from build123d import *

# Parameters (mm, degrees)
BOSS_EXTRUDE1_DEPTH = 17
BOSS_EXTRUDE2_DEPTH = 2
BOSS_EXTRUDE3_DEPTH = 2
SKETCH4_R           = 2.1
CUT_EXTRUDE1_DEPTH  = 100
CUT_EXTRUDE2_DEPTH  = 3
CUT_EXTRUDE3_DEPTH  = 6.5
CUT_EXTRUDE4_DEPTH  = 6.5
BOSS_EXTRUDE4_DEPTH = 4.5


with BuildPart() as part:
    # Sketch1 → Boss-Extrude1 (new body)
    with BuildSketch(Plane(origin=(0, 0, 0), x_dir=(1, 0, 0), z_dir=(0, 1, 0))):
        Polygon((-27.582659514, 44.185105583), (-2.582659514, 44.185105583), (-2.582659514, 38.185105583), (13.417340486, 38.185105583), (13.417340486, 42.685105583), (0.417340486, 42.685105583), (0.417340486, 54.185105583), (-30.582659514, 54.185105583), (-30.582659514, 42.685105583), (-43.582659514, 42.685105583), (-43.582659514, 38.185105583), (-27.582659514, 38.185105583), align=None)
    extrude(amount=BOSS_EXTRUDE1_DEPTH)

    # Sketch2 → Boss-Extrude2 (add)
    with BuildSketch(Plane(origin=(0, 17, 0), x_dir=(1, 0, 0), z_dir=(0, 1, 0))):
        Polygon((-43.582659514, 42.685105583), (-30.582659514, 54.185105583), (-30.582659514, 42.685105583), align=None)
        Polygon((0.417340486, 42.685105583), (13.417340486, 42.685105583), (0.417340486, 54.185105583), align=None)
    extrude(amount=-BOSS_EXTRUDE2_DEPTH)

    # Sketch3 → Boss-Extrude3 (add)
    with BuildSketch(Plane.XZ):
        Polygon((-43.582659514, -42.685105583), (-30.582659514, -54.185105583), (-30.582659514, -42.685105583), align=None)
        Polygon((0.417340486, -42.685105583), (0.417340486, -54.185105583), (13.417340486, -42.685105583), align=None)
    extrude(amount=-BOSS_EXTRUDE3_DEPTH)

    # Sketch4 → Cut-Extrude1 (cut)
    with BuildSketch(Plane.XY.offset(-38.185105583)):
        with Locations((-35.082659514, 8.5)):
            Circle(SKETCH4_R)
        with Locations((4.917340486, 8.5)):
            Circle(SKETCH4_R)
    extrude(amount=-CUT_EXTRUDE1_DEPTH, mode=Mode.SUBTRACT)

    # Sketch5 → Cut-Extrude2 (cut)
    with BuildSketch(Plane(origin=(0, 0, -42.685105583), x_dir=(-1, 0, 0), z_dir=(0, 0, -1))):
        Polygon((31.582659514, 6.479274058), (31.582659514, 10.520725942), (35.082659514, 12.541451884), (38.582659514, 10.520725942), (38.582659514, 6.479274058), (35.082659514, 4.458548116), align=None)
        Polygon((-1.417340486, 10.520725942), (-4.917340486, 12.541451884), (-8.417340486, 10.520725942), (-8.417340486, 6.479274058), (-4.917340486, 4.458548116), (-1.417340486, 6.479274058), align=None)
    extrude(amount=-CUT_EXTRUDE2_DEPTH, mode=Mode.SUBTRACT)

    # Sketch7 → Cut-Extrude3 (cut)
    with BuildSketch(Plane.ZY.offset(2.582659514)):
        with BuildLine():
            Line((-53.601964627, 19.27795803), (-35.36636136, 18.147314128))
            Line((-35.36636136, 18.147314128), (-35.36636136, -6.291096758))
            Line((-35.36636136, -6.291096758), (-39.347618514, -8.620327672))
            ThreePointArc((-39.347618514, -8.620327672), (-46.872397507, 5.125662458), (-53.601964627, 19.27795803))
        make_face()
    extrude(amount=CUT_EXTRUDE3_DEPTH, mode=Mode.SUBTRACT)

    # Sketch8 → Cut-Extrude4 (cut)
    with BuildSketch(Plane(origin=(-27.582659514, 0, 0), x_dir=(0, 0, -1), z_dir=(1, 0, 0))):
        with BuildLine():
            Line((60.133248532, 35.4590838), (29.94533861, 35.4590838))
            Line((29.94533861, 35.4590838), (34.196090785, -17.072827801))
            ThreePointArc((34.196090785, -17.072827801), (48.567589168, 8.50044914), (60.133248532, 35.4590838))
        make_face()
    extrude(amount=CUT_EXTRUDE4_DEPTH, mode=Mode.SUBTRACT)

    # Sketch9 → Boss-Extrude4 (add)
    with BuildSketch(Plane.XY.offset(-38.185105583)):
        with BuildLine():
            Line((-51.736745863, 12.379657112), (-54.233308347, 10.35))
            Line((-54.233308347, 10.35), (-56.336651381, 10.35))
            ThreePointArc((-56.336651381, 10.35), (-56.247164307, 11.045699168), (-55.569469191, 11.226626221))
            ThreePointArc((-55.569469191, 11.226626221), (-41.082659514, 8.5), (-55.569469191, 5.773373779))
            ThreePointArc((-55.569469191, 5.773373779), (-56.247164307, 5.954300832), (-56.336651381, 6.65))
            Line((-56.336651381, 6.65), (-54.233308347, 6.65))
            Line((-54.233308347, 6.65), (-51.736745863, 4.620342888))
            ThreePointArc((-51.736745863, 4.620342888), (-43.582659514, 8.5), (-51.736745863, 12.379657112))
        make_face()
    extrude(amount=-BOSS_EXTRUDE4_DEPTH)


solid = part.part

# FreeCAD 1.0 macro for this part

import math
import FreeCAD as App
import Part
import Sketcher

V = App.Vector
Q = App.Units.Quantity


def add_polygon(sketch, points):
    """Adds a closed chain of lines whose ends are joined by coincident constraints."""
    first, n = sketch.GeometryCount, len(points)
    for a, b in zip(points, points[1:] + points[:1]):
        sketch.addGeometry(Part.LineSegment(App.Vector(*a, 0), App.Vector(*b, 0)), False)
    for i in range(n):
        sketch.addConstraint(Sketcher.Constraint("Coincident", first + i, 2, first + (i + 1) % n, 1))

doc = App.newDocument("Part")
body = doc.addObject("PartDesign::Body", "Body")

# Sketch on XZ plane
sketch1 = body.newObject("Sketcher::SketchObject", "Sketch")
sketch1.AttachmentSupport = (doc.getObject("XZ_Plane"), [""])
sketch1.MapMode = "FlatFace"
add_polygon(sketch1, [(-27.6, -44.2), (-2.6, -44.2), (-2.6, -38.2), (13.4, -38.2), (13.4, -42.7), (0.4, -42.7), (0.4, -54.2), (-30.6, -54.2), (-30.6, -42.7), (-43.6, -42.7), (-43.6, -38.2), (-27.6, -38.2)])  # lines 0-11
sketch1.addConstraint(Sketcher.Constraint("Horizontal", 0))
sketch1.addConstraint(Sketcher.Constraint("Vertical", 1))
sketch1.addConstraint(Sketcher.Constraint("Horizontal", 2))
sketch1.addConstraint(Sketcher.Constraint("Vertical", 3))
sketch1.addConstraint(Sketcher.Constraint("Horizontal", 4))
sketch1.addConstraint(Sketcher.Constraint("Vertical", 5))
sketch1.addConstraint(Sketcher.Constraint("Horizontal", 6))
sketch1.addConstraint(Sketcher.Constraint("Vertical", 7))
sketch1.addConstraint(Sketcher.Constraint("Horizontal", 8))
sketch1.addConstraint(Sketcher.Constraint("Vertical", 9))
sketch1.addConstraint(Sketcher.Constraint("Horizontal", 10))
sketch1.addConstraint(Sketcher.Constraint("Vertical", 11))
sketch1.addConstraint(Sketcher.Constraint("Horizontal", 4, 2, 7, 2))
sketch1.addConstraint(Sketcher.Constraint("Horizontal", 2, 2, 9, 2))
sketch1.addConstraint(Sketcher.Constraint("Equal", 4, 8))
sketch1.addConstraint(Sketcher.Constraint("Equal", 2, 10))
sketch1.addConstraint(Sketcher.Constraint("DistanceX", 0, 1, 0, 2, Q("25 mm")))
sketch1.addConstraint(Sketcher.Constraint("DistanceX", 2, 1, 2, 2, Q("16 mm")))
sketch1.addConstraint(Sketcher.Constraint("DistanceX", 4, 2, 4, 1, Q("13 mm")))
sketch1.addConstraint(Sketcher.Constraint("DistanceY", 1, 1, 1, 2, Q("6 mm")))
sketch1.addConstraint(Sketcher.Constraint("DistanceY", 3, 2, 3, 1, Q("4.5 mm")))
sketch1.addConstraint(Sketcher.Constraint("DistanceY", 5, 2, 5, 1, Q("11.5 mm")))
sketch1.addConstraint(Sketcher.Constraint("DistanceX", 0, 2, -1, 1, Q("2.58266 mm")))
sketch1.addConstraint(Sketcher.Constraint("DistanceY", 0, 2, -1, 1, Q("44.185106 mm")))
pad1 = body.newObject("PartDesign::Pad", "Pad")
pad1.Profile = sketch1
pad1.Length = 17
pad1.Reversed = True

# Sketch on XZ plane
sketch2 = body.newObject("Sketcher::SketchObject", "Sketch001")
sketch2.AttachmentSupport = (doc.getObject("XZ_Plane"), [""])
sketch2.MapMode = "FlatFace"
sketch2.AttachmentOffset = App.Placement(V(0, 0, -17), App.Rotation())
add_polygon(sketch2, [(-31, -54), (-44, -43), (-31, -43)])  # lines 0-2
add_polygon(sketch2, [(0, -43), (13, -43), (0, -54)])  # lines 3-5
sketch2.addConstraint(Sketcher.Constraint("Horizontal", 1))
sketch2.addConstraint(Sketcher.Constraint("Vertical", 2))
sketch2.addConstraint(Sketcher.Constraint("Horizontal", 3))
sketch2.addConstraint(Sketcher.Constraint("Vertical", 5))
sketch2.addConstraint(Sketcher.Constraint("Horizontal", 1, 2, 3, 2))
sketch2.addConstraint(Sketcher.Constraint("Horizontal", 2, 2, 4, 2))
sketch2.addConstraint(Sketcher.Constraint("Equal", 1, 3))
sketch2.addConstraint(Sketcher.Constraint("DistanceX", 1, 1, 1, 2, Q("13 mm")))
sketch2.addConstraint(Sketcher.Constraint("DistanceY", 2, 2, 2, 1, Q("11.5 mm")))
sketch2.addConstraint(Sketcher.Constraint("DistanceX", 1, 2, 3, 2, Q("44 mm")))
sketch2.addConstraint(Sketcher.Constraint("DistanceX", 0, 2, -1, 1, Q("43.58266 mm")))
sketch2.addConstraint(Sketcher.Constraint("DistanceY", 0, 2, -1, 1, Q("42.685106 mm")))
pad2 = body.newObject("PartDesign::Pad", "Pad001")
pad2.Profile = sketch2
pad2.Length = 2

# Sketch on XZ plane
sketch3 = body.newObject("Sketcher::SketchObject", "Sketch002")
sketch3.AttachmentSupport = (doc.getObject("XZ_Plane"), [""])
sketch3.MapMode = "FlatFace"
add_polygon(sketch3, [(-44, -43), (-31, -54), (-31, -43)])  # lines 0-2
add_polygon(sketch3, [(0, -43), (0, -54), (13, -43)])  # lines 3-5
sketch3.addConstraint(Sketcher.Constraint("Vertical", 1))
sketch3.addConstraint(Sketcher.Constraint("Horizontal", 2))
sketch3.addConstraint(Sketcher.Constraint("Vertical", 3))
sketch3.addConstraint(Sketcher.Constraint("Horizontal", 5))
sketch3.addConstraint(Sketcher.Constraint("Horizontal", 0, 2, 3, 2))
sketch3.addConstraint(Sketcher.Constraint("Horizontal", 2, 2, 4, 2))
sketch3.addConstraint(Sketcher.Constraint("Equal", 2, 5))
sketch3.addConstraint(Sketcher.Constraint("DistanceX", 2, 2, 2, 1, Q("13 mm")))
sketch3.addConstraint(Sketcher.Constraint("DistanceY", 1, 1, 1, 2, Q("11.5 mm")))
sketch3.addConstraint(Sketcher.Constraint("DistanceX", 0, 2, 3, 2, Q("31 mm")))
sketch3.addConstraint(Sketcher.Constraint("DistanceX", 0, 2, -1, 1, Q("30.58266 mm")))
sketch3.addConstraint(Sketcher.Constraint("DistanceY", 0, 2, -1, 1, Q("54.185106 mm")))
pad3 = body.newObject("PartDesign::Pad", "Pad002")
pad3.Profile = sketch3
pad3.Length = 2
pad3.Reversed = True

# Sketch on XY plane
sketch4 = body.newObject("Sketcher::SketchObject", "Sketch003")
sketch4.AttachmentSupport = (doc.getObject("XY_Plane"), [""])
sketch4.MapMode = "FlatFace"
sketch4.AttachmentOffset = App.Placement(V(0, 0, -38.185106), App.Rotation())
sketch4.addGeometry(Part.Circle(V(-35.1, 8.5, 0), V(0, 0, 1), 2.1), False)
sketch4.addGeometry(Part.Circle(V(4.9, 8.5, 0), V(0, 0, 1), 2.1), False)
sketch4.addConstraint(Sketcher.Constraint("Equal", 0, 1))
sketch4.addConstraint(Sketcher.Constraint("Horizontal", 0, 3, 1, 3))
sketch4.addConstraint(Sketcher.Constraint("Diameter", 0, Q("4.2 mm")))
sketch4.addConstraint(Sketcher.Constraint("DistanceX", 0, 3, 1, 3, Q("40 mm")))
sketch4.addConstraint(Sketcher.Constraint("DistanceY", -1, 1, 0, 3, Q("8.5 mm")))
sketch4.addConstraint(Sketcher.Constraint("DistanceX", 0, 3, -1, 1, Q("35.08266 mm")))
pocket1 = body.newObject("PartDesign::Pocket", "Pocket")
pocket1.Profile = sketch4
pocket1.Length = 100

# Sketch on XY plane
sketch5 = body.newObject("Sketcher::SketchObject", "Sketch004")
sketch5.AttachmentSupport = (doc.getObject("XY_Plane"), [""])
sketch5.MapMode = "FlatFace"
sketch5.AttachmentOffset = App.Placement(V(0, 0, -42.685106), App.Rotation())
add_polygon(sketch5, [(-31.6, 10.5), (-31.6, 6.5), (-35.1, 4.5), (-38.6, 6.5), (-38.6, 10.5), (-35.1, 12.5)])  # lines 0-5
add_polygon(sketch5, [(1.4, 10.5), (4.9, 12.5), (8.4, 10.5), (8.4, 6.5), (4.9, 4.5), (1.4, 6.5)])  # lines 6-11
sketch5.addConstraint(Sketcher.Constraint("Vertical", 0))
sketch5.addConstraint(Sketcher.Constraint("Vertical", 3))
sketch5.addConstraint(Sketcher.Constraint("Vertical", 8))
sketch5.addConstraint(Sketcher.Constraint("Vertical", 11))
sketch5.addConstraint(Sketcher.Constraint("Parallel", 1, 4))
sketch5.addConstraint(Sketcher.Constraint("Parallel", 2, 5))
sketch5.addConstraint(Sketcher.Constraint("Parallel", 4, 6))
sketch5.addConstraint(Sketcher.Constraint("Parallel", 5, 7))
sketch5.addConstraint(Sketcher.Constraint("Parallel", 6, 9))
sketch5.addConstraint(Sketcher.Constraint("Parallel", 7, 10))
sketch5.addConstraint(Sketcher.Constraint("Horizontal", 0, 2, 2, 2))
sketch5.addConstraint(Sketcher.Constraint("Horizontal", 3, 2, 5, 2))
sketch5.addConstraint(Sketcher.Constraint("Horizontal", 4, 2, 6, 2))
sketch5.addConstraint(Sketcher.Constraint("Horizontal", 5, 2, 7, 2))
sketch5.addConstraint(Sketcher.Constraint("Horizontal", 2, 2, 8, 2))
sketch5.addConstraint(Sketcher.Constraint("Horizontal", 1, 2, 9, 2))
sketch5.addConstraint(Sketcher.Constraint("Horizontal", 8, 2, 10, 2))
sketch5.addConstraint(Sketcher.Constraint("Vertical", 1, 2, 4, 2))
sketch5.addConstraint(Sketcher.Constraint("Angle", 1, Q("-150 deg")))
sketch5.addConstraint(Sketcher.Constraint("DistanceX", 2, 2, 0, 2, Q("7 mm")))
sketch5.addConstraint(Sketcher.Constraint("DistanceX", 4, 2, 6, 2, Q("40 mm")))
sketch5.addConstraint(Sketcher.Constraint("DistanceY", 0, 2, 0, 1, Q("4.041452 mm")))
sketch5.addConstraint(Sketcher.Constraint("DistanceX", 0, 2, -1, 1, Q("31.58266 mm")))
sketch5.addConstraint(Sketcher.Constraint("DistanceY", -1, 1, 1, 2, Q("4.458548 mm")))
pocket2 = body.newObject("PartDesign::Pocket", "Pocket001")
pocket2.Profile = sketch5
pocket2.Length = 3
pocket2.Reversed = True

# Sketch on YZ plane
sketch6 = body.newObject("Sketcher::SketchObject", "Sketch005")
sketch6.AttachmentSupport = (doc.getObject("YZ_Plane"), [""])
sketch6.MapMode = "FlatFace"
sketch6.AttachmentOffset = App.Placement(V(0, 0, -2.58266), App.Rotation())
sketch6.addGeometry(Part.LineSegment(V(18.1, -35.4, 0), V(19.3, -53.6, 0)), False)
sketch6.addGeometry(Part.ArcOfCircle(Part.Circle(V(130.2, 198, 0), V(0, 0, 1), 275), math.radians(-120.33), math.radians(-113.8)), False)
sketch6.addGeometry(Part.LineSegment(V(-8.6, -39.3, 0), V(-6.3, -35.4, 0)), False)
sketch6.addGeometry(Part.LineSegment(V(-6.3, -35.4, 0), V(18.1, -35.4, 0)), False)
sketch6.addConstraint(Sketcher.Constraint("Coincident", 0, 2, 1, 2))
sketch6.addConstraint(Sketcher.Constraint("Coincident", 1, 1, 2, 1))
sketch6.addConstraint(Sketcher.Constraint("Coincident", 2, 2, 3, 1))
sketch6.addConstraint(Sketcher.Constraint("Coincident", 3, 2, 0, 1))
sketch6.addConstraint(Sketcher.Constraint("Horizontal", 3))
sketch6.addConstraint(Sketcher.Constraint("Radius", 1, Q("275 mm")))
sketch6.addConstraint(Sketcher.Constraint("DistanceX", 3, 1, 3, 2, Q("24.438411 mm")))
sketch6.addConstraint(Sketcher.Constraint("Distance", 0, Q("18.270621 mm")))
sketch6.addConstraint(Sketcher.Constraint("Distance", 2, Q("4.612562 mm")))
sketch6.addConstraint(Sketcher.Constraint("DistanceX", -1, 1, 1, 3, Q("130.247951 mm")))
sketch6.addConstraint(Sketcher.Constraint("DistanceX", -1, 1, 0, 2, Q("19.277958 mm")))
sketch6.addConstraint(Sketcher.Constraint("DistanceY", 1, 1, -1, 1, Q("39.347619 mm")))
sketch6.addConstraint(Sketcher.Constraint("DistanceY", 2, 2, -1, 1, Q("35.366361 mm")))
pocket3 = body.newObject("PartDesign::Pocket", "Pocket002")
pocket3.Profile = sketch6
pocket3.Length = 6.5

# Sketch on YZ plane
sketch7 = body.newObject("Sketcher::SketchObject", "Sketch006")
sketch7.AttachmentSupport = (doc.getObject("YZ_Plane"), [""])
sketch7.MapMode = "FlatFace"
sketch7.AttachmentOffset = App.Placement(V(0, 0, -27.58266), App.Rotation())
sketch7.addGeometry(Part.LineSegment(V(35, -60, 0), V(35, -30, 0)), False)
sketch7.addGeometry(Part.LineSegment(V(35, -30, 0), V(-17, -34, 0)), False)
sketch7.addGeometry(Part.ArcOfCircle(Part.Circle(V(130, 198, 0), V(0, 0, 1), 275), math.radians(-122.39), math.radians(-110.16)), False)
sketch7.addConstraint(Sketcher.Constraint("Coincident", 0, 2, 1, 1))
sketch7.addConstraint(Sketcher.Constraint("Coincident", 1, 2, 2, 1))
sketch7.addConstraint(Sketcher.Constraint("Coincident", 2, 2, 0, 1))
sketch7.addConstraint(Sketcher.Constraint("Vertical", 0))
sketch7.addConstraint(Sketcher.Constraint("Radius", 2, Q("275 mm")))
sketch7.addConstraint(Sketcher.Constraint("DistanceY", 0, 1, 0, 2, Q("30.18791 mm")))
sketch7.addConstraint(Sketcher.Constraint("Distance", 1, Q("52.703611 mm")))
sketch7.addConstraint(Sketcher.Constraint("DistanceX", -1, 1, 2, 3, Q("130.247951 mm")))
sketch7.addConstraint(Sketcher.Constraint("DistanceY", 0, 2, -1, 1, Q("29.945339 mm")))
sketch7.addConstraint(Sketcher.Constraint("DistanceY", 1, 2, -1, 1, Q("34.196091 mm")))
pocket4 = body.newObject("PartDesign::Pocket", "Pocket003")
pocket4.Profile = sketch7
pocket4.Length = 6.5
pocket4.Reversed = True

# Sketch on XY plane
sketch8 = body.newObject("Sketcher::SketchObject", "Sketch007")
sketch8.AttachmentSupport = (doc.getObject("XY_Plane"), [""])
sketch8.MapMode = "FlatFace"
sketch8.AttachmentOffset = App.Placement(V(0, 0, -38.185106), App.Rotation())
sketch8.addGeometry(Part.LineSegment(V(-54.2, 10.3, 0), V(-51.7, 12.4, 0)), False)
sketch8.addGeometry(Part.ArcOfCircle(Part.Circle(V(-48.6, 8.5, 0), V(0, 0, 1), 5), math.radians(-129), math.radians(129)), False)
sketch8.addGeometry(Part.LineSegment(V(-51.7, 4.6, 0), V(-54.2, 6.7, 0)), False)
sketch8.addGeometry(Part.LineSegment(V(-54.2, 6.7, 0), V(-56.3, 6.7, 0)), False)
sketch8.addGeometry(Part.ArcOfCircle(Part.Circle(V(-55.8, 6.4, 0), V(0, 0, 1), 0.6), math.radians(153), math.radians(289)), False)
sketch8.addGeometry(Part.ArcOfCircle(Part.Circle(V(-48.6, 8.5, 0), V(0, 0, 1), 7.5), math.radians(-159), math.radians(159)), False)
sketch8.addGeometry(Part.ArcOfCircle(Part.Circle(V(-55.8, 10.6, 0), V(0, 0, 1), 0.6), math.radians(71), math.radians(207)), False)
sketch8.addGeometry(Part.LineSegment(V(-56.3, 10.3, 0), V(-54.2, 10.3, 0)), False)
sketch8.addConstraint(Sketcher.Constraint("Tangent", 0, 2, 1, 2))
sketch8.addConstraint(Sketcher.Constraint("Tangent", 1, 1, 2, 1))
sketch8.addConstraint(Sketcher.Constraint("Coincident", 2, 2, 3, 1))
sketch8.addConstraint(Sketcher.Constraint("Coincident", 3, 2, 4, 1))
sketch8.addConstraint(Sketcher.Constraint("Coincident", 4, 2, 5, 1))
sketch8.addConstraint(Sketcher.Constraint("Coincident", 5, 2, 6, 1))
sketch8.addConstraint(Sketcher.Constraint("Coincident", 6, 2, 7, 1))
sketch8.addConstraint(Sketcher.Constraint("Coincident", 7, 2, 0, 1))
sketch8.addConstraint(Sketcher.Constraint("Horizontal", 3))
sketch8.addConstraint(Sketcher.Constraint("Horizontal", 7))
sketch8.addConstraint(Sketcher.Constraint("Coincident", 5, 3, 1, 3))
sketch8.addConstraint(Sketcher.Constraint("Equal", 4, 6))
sketch8.addConstraint(Sketcher.Constraint("Vertical", 4, 3, 6, 3))
sketch8.addConstraint(Sketcher.Constraint("Vertical", 0, 2, 1, 1))
sketch8.addConstraint(Sketcher.Constraint("Vertical", 4, 2, 5, 2))
sketch8.addConstraint(Sketcher.Constraint("Vertical", 3, 2, 6, 2))
sketch8.addConstraint(Sketcher.Constraint("Radius", 1, Q("5 mm")))
sketch8.addConstraint(Sketcher.Constraint("Radius", 5, Q("7.5 mm")))
sketch8.addConstraint(Sketcher.Constraint("DistanceY", -1, 1, 1, 3, Q("8.5 mm")))
sketch8.addConstraint(Sketcher.Constraint("DistanceY", 3, 2, 6, 2, Q("3.7 mm")))
sketch8.addConstraint(Sketcher.Constraint("Radius", 4, Q("0.629443 mm")))
sketch8.addConstraint(Sketcher.Constraint("DistanceX", 3, 2, 3, 1, Q("2.103343 mm")))
sketch8.addConstraint(Sketcher.Constraint("DistanceX", 1, 3, -1, 1, Q("48.58266 mm")))
sketch8.addConstraint(Sketcher.Constraint("DistanceX", 2, 2, -1, 1, Q("54.233308 mm")))
sketch8.addConstraint(Sketcher.Constraint("DistanceX", 4, 2, -1, 1, Q("55.569469 mm")))
pad4 = body.newObject("PartDesign::Pad", "Pad003")
pad4.Profile = sketch8
pad4.Length = 4.5
pad4.Reversed = True

doc.recompute()
